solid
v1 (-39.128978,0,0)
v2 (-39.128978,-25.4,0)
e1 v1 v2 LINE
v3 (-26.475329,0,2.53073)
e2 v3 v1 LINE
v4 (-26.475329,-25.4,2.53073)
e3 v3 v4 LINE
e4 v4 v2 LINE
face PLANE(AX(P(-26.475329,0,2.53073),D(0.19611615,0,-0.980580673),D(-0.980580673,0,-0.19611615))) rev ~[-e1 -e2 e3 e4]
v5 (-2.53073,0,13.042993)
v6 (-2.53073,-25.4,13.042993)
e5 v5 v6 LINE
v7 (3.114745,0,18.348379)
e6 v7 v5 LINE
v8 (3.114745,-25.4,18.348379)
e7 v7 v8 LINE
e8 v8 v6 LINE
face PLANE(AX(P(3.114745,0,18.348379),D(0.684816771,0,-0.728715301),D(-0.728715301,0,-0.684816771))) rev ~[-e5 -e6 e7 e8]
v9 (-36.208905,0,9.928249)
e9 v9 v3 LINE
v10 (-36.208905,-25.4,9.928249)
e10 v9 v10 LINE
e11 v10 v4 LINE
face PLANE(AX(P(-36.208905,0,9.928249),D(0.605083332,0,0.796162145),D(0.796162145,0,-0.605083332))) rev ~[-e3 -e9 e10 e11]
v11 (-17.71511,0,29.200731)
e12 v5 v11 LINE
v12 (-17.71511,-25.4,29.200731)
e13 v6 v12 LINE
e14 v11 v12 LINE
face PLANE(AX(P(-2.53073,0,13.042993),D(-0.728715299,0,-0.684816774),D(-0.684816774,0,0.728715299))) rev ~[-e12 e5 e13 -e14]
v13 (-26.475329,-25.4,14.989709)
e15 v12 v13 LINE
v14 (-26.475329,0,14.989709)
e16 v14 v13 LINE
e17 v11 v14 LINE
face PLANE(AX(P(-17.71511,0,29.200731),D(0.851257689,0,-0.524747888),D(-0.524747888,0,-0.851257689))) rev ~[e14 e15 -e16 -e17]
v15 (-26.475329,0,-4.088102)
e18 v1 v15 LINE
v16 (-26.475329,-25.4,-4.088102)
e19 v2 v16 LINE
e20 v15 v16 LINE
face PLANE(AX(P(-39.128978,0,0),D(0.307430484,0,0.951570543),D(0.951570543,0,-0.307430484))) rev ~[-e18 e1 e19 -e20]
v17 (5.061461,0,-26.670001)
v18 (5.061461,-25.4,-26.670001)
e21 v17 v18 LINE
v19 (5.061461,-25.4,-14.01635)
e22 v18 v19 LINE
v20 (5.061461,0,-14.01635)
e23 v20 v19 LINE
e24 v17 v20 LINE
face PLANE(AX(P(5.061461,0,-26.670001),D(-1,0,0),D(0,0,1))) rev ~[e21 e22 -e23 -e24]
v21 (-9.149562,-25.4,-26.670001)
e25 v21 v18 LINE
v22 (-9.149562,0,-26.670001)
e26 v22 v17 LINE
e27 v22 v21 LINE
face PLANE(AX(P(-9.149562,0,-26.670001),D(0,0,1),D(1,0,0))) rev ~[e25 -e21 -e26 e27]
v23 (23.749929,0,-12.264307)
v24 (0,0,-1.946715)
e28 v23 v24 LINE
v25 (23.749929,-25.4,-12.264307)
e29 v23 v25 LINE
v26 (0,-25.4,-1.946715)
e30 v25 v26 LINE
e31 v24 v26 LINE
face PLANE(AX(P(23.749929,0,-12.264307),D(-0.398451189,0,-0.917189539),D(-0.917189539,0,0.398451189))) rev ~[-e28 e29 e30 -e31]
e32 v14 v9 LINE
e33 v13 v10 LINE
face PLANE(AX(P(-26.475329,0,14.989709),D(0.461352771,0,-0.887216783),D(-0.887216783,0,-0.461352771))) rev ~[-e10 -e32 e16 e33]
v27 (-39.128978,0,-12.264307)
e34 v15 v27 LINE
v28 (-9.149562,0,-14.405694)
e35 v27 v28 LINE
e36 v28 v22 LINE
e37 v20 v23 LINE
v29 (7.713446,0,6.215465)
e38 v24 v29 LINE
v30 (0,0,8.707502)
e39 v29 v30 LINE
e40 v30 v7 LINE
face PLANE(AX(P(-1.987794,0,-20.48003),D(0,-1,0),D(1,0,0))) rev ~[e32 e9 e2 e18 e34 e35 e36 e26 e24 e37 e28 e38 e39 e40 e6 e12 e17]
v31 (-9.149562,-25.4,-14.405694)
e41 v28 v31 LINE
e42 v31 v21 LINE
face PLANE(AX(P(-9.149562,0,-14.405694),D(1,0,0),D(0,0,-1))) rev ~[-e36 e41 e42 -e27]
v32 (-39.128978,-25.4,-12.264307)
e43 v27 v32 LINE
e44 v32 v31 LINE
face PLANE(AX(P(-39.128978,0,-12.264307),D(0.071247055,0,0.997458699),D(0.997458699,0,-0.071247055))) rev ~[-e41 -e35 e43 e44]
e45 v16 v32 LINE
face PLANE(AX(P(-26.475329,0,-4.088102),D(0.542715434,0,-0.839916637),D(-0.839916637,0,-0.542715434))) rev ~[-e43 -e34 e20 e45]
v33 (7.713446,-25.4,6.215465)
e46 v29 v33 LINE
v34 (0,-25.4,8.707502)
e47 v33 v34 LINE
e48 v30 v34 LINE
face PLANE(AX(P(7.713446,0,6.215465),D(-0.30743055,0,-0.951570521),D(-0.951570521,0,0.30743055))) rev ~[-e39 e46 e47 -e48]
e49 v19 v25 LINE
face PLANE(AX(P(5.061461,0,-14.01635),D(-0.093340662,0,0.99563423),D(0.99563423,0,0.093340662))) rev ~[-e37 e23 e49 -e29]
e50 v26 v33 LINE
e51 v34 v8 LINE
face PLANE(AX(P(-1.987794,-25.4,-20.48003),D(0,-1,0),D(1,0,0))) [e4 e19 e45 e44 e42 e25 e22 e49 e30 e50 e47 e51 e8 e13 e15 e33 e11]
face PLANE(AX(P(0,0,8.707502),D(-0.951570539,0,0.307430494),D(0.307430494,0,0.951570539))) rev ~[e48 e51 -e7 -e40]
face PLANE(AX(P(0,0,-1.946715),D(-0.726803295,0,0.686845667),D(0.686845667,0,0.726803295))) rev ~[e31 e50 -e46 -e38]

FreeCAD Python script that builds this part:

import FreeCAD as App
import Part
import Sketcher
from FreeCAD import Vector
Q = App.Units.Quantity

doc = App.newDocument("Part")
body = doc.addObject("PartDesign::Body", "Body")

sketch1 = body.newObject("Sketcher::SketchObject", "Sketch")
sketch1.AttachmentSupport = (doc.getObject("XZ_Plane"), [""])
sketch1.MapMode = "FlatFace"
sketch1.addGeometry(Part.LineSegment(Vector(3.1, -14.4, 0), Vector(-9.1, -14.4, 0)), False)
sketch1.addGeometry(Part.LineSegment(Vector(-9.1, -14.4, 0), Vector(-9.1, -26.7, 0)), False)
sketch1.addGeometry(Part.LineSegment(Vector(-9.1, -26.7, 0), Vector(5.1, -26.7, 0)), False)
sketch1.addGeometry(Part.LineSegment(Vector(5.1, -26.7, 0), Vector(5.1, -14, 0)), False)
sketch1.addGeometry(Part.LineSegment(Vector(5.1, -14, 0), Vector(3.1, -14.4, 0)), False)
sketch1.addConstraint(Sketcher.Constraint("Coincident", 0, 2, 1, 1))
sketch1.addConstraint(Sketcher.Constraint("Coincident", 1, 2, 2, 1))
sketch1.addConstraint(Sketcher.Constraint("Coincident", 2, 2, 3, 1))
sketch1.addConstraint(Sketcher.Constraint("Coincident", 3, 2, 4, 1))
sketch1.addConstraint(Sketcher.Constraint("Coincident", 4, 2, 0, 1))
sketch1.addConstraint(Sketcher.Constraint("Horizontal", 0))
sketch1.addConstraint(Sketcher.Constraint("Vertical", 1))
sketch1.addConstraint(Sketcher.Constraint("Horizontal", 2))
sketch1.addConstraint(Sketcher.Constraint("Vertical", 3))
sketch1.addConstraint(Sketcher.Constraint("Equal", 0, 1))
sketch1.addConstraint(Sketcher.Constraint("DistanceY", 1, 2, -1, 1, Q("1.05 in")))
sketch1.addConstraint(Sketcher.Constraint("DistanceY", 3, 1, 3, 2, Q("12.653651 mm")))
sketch1.addConstraint(Sketcher.Constraint("Distance", 4, Q("1.985269 mm")))
sketch1.addConstraint(Sketcher.Constraint("DistanceX", 0, 2, 0, 1, Q("12.264307 mm")))
sketch1.addConstraint(Sketcher.Constraint("DistanceX", -1, 1, 2, 2, Q("5.061461 mm")))
pad1 = body.newObject("PartDesign::Pad", "Pad")
pad1.Profile = sketch1
pad1.Length = Q("1 in")

sketch2 = body.newObject("Sketcher::SketchObject", "Sketch001")
sketch2.AttachmentSupport = (doc.getObject("XZ_Plane"), [""])
sketch2.MapMode = "FlatFace"
sketch2.addGeometry(Part.LineSegment(Vector(-9, -14, 0), Vector(-9, -27, 0)), False)
sketch2.addGeometry(Part.LineSegment(Vector(-9, -27, 0), Vector(5, -27, 0)), False)
sketch2.addGeometry(Part.LineSegment(Vector(5, -27, 0), Vector(5, -14, 0)), False)
sketch2.addGeometry(Part.LineSegment(Vector(5, -14, 0), Vector(24, -12, 0)), False)
sketch2.addGeometry(Part.LineSegment(Vector(24, -12, 0), Vector(0, -2, 0)), False)
sketch2.addGeometry(Part.LineSegment(Vector(0, -2, 0), Vector(8, 6, 0)), False)
sketch2.addGeometry(Part.LineSegment(Vector(8, 6, 0), Vector(0, 9, 0)), False)
sketch2.addGeometry(Part.LineSegment(Vector(0, 9, 0), Vector(3, 18, 0)), False)
sketch2.addGeometry(Part.LineSegment(Vector(3, 18, 0), Vector(-3, 13, 0)), False)
sketch2.addGeometry(Part.LineSegment(Vector(-3, 13, 0), Vector(-18, 29, 0)), False)
sketch2.addGeometry(Part.LineSegment(Vector(-18, 29, 0), Vector(-26, 15, 0)), False)
sketch2.addGeometry(Part.LineSegment(Vector(-26, 15, 0), Vector(-36, 10, 0)), False)
sketch2.addGeometry(Part.LineSegment(Vector(-36, 10, 0), Vector(-26, 3, 0)), False)
sketch2.addGeometry(Part.LineSegment(Vector(-26, 3, 0), Vector(-39, 0, 0)), False)
sketch2.addGeometry(Part.LineSegment(Vector(-39, 0, 0), Vector(-26, -4, 0)), False)
sketch2.addGeometry(Part.LineSegment(Vector(-26, -4, 0), Vector(-39, -12, 0)), False)
sketch2.addGeometry(Part.LineSegment(Vector(-39, -12, 0), Vector(-9, -14, 0)), False)
sketch2.addConstraint(Sketcher.Constraint("Coincident", 0, 2, 1, 1))
sketch2.addConstraint(Sketcher.Constraint("Coincident", 1, 2, 2, 1))
sketch2.addConstraint(Sketcher.Constraint("Coincident", 2, 2, 3, 1))
sketch2.addConstraint(Sketcher.Constraint("Coincident", 3, 2, 4, 1))
sketch2.addConstraint(Sketcher.Constraint("Coincident", 4, 2, 5, 1))
sketch2.addConstraint(Sketcher.Constraint("Coincident", 5, 2, 6, 1))
sketch2.addConstraint(Sketcher.Constraint("Coincident", 6, 2, 7, 1))
sketch2.addConstraint(Sketcher.Constraint("Coincident", 7, 2, 8, 1))
sketch2.addConstraint(Sketcher.Constraint("Coincident", 8, 2, 9, 1))
sketch2.addConstraint(Sketcher.Constraint("Coincident", 9, 2, 10, 1))
sketch2.addConstraint(Sketcher.Constraint("Coincident", 10, 2, 11, 1))
sketch2.addConstraint(Sketcher.Constraint("Coincident", 11, 2, 12, 1))
sketch2.addConstraint(Sketcher.Constraint("Coincident", 12, 2, 13, 1))
sketch2.addConstraint(Sketcher.Constraint("Coincident", 13, 2, 14, 1))
sketch2.addConstraint(Sketcher.Constraint("Coincident", 14, 2, 15, 1))
sketch2.addConstraint(Sketcher.Constraint("Coincident", 15, 2, 16, 1))
sketch2.addConstraint(Sketcher.Constraint("Coincident", 16, 2, 0, 1))
sketch2.addConstraint(Sketcher.Constraint("Vertical", 0))
sketch2.addConstraint(Sketcher.Constraint("Horizontal", 1))
sketch2.addConstraint(Sketcher.Constraint("Vertical", 2))
sketch2.addConstraint(Sketcher.Constraint("PointOnObject", 4, 2, -2))
sketch2.addConstraint(Sketcher.Constraint("PointOnObject", 6, 2, -2))
sketch2.addConstraint(Sketcher.Constraint("PointOnObject", 13, 2, -1))
sketch2.addConstraint(Sketcher.Constraint("Perpendicular", 6, 7))
sketch2.addConstraint(Sketcher.Constraint("Perpendicular", 8, 9))
sketch2.addConstraint(Sketcher.Constraint("Perpendicular", 7, 14))
sketch2.addConstraint(Sketcher.Constraint("Horizontal", 3, 2, 15, 2))
sketch2.addConstraint(Sketcher.Constraint("Vertical", 10, 2, 12, 2))
sketch2.addConstraint(Sketcher.Constraint("Vertical", 12, 2, 14, 2))
sketch2.addConstraint(Sketcher.Constraint("Vertical", 13, 2, 15, 2))
sketch2.addConstraint(Sketcher.Constraint("DistanceY", 0, 2, -1, 1, Q("1.05 in")))
sketch2.addConstraint(Sketcher.Constraint("DistanceY", 2, 1, 2, 2, Q("12.653651 mm")))
sketch2.addConstraint(Sketcher.Constraint("DistanceX", 7, 2, 5, 2, Q("4.598701 mm")))
sketch2.addConstraint(Sketcher.Constraint("DistanceX", 10, 2, 8, 2, Q("23.944599 mm")))
sketch2.addConstraint(Sketcher.Constraint("Distance", 8, Q("7.747161 mm")))
sketch2.addConstraint(Sketcher.Constraint("Distance", 9, Q("22.172909 mm")))
sketch2.addConstraint(Sketcher.Constraint("Distance", 10, Q("16.694148 mm")))
sketch2.addConstraint(Sketcher.Constraint("Distance", 11, Q("10.970911 mm")))
sketch2.addConstraint(Sketcher.Constraint("Distance", 12, Q("12.22562 mm")))
sketch2.addConstraint(Sketcher.Constraint("Distance", 13, Q("12.904241 mm")))
sketch2.addConstraint(Sketcher.Constraint("DistanceX", 1, 1, 1, 2, Q("14.211023 mm")))
sketch2.addConstraint(Sketcher.Constraint("DistanceY", 0, 2, 0, 1, Q("12.264307 mm")))
sketch2.addConstraint(Sketcher.Constraint("DistanceX", -1, 1, 1, 2, Q("5.061461 mm")))
sketch2.addConstraint(Sketcher.Constraint("DistanceX", -1, 1, 3, 2, Q("23.749929 mm")))
sketch2.addConstraint(Sketcher.Constraint("DistanceY", -1, 1, 7, 2, Q("18.348379 mm")))
sketch2.addConstraint(Sketcher.Constraint("DistanceX", 8, 2, -1, 1, Q("2.53073 mm")))
sketch2.addConstraint(Sketcher.Constraint("DistanceX", 9, 2, -1, 1, Q("17.71511 mm")))
sketch2.addConstraint(Sketcher.Constraint("DistanceY", -1, 1, 11, 2, Q("9.928249 mm")))
sketch2.addConstraint(Sketcher.Constraint("DistanceY", 4, 2, 5, 2, Q("8.16218 mm")))
sketch2.addConstraint(Sketcher.Constraint("DistanceY", 3, 2, 6, 2, Q("20.971809 mm")))
sketch2.addConstraint(Sketcher.Constraint("DistanceY", 6, 2, 8, 2, Q("4.335491 mm")))
pad2 = body.newObject("PartDesign::Pad", "Pad001")
pad2.Profile = sketch2
pad2.Length = Q("1 in")

doc.recompute()
